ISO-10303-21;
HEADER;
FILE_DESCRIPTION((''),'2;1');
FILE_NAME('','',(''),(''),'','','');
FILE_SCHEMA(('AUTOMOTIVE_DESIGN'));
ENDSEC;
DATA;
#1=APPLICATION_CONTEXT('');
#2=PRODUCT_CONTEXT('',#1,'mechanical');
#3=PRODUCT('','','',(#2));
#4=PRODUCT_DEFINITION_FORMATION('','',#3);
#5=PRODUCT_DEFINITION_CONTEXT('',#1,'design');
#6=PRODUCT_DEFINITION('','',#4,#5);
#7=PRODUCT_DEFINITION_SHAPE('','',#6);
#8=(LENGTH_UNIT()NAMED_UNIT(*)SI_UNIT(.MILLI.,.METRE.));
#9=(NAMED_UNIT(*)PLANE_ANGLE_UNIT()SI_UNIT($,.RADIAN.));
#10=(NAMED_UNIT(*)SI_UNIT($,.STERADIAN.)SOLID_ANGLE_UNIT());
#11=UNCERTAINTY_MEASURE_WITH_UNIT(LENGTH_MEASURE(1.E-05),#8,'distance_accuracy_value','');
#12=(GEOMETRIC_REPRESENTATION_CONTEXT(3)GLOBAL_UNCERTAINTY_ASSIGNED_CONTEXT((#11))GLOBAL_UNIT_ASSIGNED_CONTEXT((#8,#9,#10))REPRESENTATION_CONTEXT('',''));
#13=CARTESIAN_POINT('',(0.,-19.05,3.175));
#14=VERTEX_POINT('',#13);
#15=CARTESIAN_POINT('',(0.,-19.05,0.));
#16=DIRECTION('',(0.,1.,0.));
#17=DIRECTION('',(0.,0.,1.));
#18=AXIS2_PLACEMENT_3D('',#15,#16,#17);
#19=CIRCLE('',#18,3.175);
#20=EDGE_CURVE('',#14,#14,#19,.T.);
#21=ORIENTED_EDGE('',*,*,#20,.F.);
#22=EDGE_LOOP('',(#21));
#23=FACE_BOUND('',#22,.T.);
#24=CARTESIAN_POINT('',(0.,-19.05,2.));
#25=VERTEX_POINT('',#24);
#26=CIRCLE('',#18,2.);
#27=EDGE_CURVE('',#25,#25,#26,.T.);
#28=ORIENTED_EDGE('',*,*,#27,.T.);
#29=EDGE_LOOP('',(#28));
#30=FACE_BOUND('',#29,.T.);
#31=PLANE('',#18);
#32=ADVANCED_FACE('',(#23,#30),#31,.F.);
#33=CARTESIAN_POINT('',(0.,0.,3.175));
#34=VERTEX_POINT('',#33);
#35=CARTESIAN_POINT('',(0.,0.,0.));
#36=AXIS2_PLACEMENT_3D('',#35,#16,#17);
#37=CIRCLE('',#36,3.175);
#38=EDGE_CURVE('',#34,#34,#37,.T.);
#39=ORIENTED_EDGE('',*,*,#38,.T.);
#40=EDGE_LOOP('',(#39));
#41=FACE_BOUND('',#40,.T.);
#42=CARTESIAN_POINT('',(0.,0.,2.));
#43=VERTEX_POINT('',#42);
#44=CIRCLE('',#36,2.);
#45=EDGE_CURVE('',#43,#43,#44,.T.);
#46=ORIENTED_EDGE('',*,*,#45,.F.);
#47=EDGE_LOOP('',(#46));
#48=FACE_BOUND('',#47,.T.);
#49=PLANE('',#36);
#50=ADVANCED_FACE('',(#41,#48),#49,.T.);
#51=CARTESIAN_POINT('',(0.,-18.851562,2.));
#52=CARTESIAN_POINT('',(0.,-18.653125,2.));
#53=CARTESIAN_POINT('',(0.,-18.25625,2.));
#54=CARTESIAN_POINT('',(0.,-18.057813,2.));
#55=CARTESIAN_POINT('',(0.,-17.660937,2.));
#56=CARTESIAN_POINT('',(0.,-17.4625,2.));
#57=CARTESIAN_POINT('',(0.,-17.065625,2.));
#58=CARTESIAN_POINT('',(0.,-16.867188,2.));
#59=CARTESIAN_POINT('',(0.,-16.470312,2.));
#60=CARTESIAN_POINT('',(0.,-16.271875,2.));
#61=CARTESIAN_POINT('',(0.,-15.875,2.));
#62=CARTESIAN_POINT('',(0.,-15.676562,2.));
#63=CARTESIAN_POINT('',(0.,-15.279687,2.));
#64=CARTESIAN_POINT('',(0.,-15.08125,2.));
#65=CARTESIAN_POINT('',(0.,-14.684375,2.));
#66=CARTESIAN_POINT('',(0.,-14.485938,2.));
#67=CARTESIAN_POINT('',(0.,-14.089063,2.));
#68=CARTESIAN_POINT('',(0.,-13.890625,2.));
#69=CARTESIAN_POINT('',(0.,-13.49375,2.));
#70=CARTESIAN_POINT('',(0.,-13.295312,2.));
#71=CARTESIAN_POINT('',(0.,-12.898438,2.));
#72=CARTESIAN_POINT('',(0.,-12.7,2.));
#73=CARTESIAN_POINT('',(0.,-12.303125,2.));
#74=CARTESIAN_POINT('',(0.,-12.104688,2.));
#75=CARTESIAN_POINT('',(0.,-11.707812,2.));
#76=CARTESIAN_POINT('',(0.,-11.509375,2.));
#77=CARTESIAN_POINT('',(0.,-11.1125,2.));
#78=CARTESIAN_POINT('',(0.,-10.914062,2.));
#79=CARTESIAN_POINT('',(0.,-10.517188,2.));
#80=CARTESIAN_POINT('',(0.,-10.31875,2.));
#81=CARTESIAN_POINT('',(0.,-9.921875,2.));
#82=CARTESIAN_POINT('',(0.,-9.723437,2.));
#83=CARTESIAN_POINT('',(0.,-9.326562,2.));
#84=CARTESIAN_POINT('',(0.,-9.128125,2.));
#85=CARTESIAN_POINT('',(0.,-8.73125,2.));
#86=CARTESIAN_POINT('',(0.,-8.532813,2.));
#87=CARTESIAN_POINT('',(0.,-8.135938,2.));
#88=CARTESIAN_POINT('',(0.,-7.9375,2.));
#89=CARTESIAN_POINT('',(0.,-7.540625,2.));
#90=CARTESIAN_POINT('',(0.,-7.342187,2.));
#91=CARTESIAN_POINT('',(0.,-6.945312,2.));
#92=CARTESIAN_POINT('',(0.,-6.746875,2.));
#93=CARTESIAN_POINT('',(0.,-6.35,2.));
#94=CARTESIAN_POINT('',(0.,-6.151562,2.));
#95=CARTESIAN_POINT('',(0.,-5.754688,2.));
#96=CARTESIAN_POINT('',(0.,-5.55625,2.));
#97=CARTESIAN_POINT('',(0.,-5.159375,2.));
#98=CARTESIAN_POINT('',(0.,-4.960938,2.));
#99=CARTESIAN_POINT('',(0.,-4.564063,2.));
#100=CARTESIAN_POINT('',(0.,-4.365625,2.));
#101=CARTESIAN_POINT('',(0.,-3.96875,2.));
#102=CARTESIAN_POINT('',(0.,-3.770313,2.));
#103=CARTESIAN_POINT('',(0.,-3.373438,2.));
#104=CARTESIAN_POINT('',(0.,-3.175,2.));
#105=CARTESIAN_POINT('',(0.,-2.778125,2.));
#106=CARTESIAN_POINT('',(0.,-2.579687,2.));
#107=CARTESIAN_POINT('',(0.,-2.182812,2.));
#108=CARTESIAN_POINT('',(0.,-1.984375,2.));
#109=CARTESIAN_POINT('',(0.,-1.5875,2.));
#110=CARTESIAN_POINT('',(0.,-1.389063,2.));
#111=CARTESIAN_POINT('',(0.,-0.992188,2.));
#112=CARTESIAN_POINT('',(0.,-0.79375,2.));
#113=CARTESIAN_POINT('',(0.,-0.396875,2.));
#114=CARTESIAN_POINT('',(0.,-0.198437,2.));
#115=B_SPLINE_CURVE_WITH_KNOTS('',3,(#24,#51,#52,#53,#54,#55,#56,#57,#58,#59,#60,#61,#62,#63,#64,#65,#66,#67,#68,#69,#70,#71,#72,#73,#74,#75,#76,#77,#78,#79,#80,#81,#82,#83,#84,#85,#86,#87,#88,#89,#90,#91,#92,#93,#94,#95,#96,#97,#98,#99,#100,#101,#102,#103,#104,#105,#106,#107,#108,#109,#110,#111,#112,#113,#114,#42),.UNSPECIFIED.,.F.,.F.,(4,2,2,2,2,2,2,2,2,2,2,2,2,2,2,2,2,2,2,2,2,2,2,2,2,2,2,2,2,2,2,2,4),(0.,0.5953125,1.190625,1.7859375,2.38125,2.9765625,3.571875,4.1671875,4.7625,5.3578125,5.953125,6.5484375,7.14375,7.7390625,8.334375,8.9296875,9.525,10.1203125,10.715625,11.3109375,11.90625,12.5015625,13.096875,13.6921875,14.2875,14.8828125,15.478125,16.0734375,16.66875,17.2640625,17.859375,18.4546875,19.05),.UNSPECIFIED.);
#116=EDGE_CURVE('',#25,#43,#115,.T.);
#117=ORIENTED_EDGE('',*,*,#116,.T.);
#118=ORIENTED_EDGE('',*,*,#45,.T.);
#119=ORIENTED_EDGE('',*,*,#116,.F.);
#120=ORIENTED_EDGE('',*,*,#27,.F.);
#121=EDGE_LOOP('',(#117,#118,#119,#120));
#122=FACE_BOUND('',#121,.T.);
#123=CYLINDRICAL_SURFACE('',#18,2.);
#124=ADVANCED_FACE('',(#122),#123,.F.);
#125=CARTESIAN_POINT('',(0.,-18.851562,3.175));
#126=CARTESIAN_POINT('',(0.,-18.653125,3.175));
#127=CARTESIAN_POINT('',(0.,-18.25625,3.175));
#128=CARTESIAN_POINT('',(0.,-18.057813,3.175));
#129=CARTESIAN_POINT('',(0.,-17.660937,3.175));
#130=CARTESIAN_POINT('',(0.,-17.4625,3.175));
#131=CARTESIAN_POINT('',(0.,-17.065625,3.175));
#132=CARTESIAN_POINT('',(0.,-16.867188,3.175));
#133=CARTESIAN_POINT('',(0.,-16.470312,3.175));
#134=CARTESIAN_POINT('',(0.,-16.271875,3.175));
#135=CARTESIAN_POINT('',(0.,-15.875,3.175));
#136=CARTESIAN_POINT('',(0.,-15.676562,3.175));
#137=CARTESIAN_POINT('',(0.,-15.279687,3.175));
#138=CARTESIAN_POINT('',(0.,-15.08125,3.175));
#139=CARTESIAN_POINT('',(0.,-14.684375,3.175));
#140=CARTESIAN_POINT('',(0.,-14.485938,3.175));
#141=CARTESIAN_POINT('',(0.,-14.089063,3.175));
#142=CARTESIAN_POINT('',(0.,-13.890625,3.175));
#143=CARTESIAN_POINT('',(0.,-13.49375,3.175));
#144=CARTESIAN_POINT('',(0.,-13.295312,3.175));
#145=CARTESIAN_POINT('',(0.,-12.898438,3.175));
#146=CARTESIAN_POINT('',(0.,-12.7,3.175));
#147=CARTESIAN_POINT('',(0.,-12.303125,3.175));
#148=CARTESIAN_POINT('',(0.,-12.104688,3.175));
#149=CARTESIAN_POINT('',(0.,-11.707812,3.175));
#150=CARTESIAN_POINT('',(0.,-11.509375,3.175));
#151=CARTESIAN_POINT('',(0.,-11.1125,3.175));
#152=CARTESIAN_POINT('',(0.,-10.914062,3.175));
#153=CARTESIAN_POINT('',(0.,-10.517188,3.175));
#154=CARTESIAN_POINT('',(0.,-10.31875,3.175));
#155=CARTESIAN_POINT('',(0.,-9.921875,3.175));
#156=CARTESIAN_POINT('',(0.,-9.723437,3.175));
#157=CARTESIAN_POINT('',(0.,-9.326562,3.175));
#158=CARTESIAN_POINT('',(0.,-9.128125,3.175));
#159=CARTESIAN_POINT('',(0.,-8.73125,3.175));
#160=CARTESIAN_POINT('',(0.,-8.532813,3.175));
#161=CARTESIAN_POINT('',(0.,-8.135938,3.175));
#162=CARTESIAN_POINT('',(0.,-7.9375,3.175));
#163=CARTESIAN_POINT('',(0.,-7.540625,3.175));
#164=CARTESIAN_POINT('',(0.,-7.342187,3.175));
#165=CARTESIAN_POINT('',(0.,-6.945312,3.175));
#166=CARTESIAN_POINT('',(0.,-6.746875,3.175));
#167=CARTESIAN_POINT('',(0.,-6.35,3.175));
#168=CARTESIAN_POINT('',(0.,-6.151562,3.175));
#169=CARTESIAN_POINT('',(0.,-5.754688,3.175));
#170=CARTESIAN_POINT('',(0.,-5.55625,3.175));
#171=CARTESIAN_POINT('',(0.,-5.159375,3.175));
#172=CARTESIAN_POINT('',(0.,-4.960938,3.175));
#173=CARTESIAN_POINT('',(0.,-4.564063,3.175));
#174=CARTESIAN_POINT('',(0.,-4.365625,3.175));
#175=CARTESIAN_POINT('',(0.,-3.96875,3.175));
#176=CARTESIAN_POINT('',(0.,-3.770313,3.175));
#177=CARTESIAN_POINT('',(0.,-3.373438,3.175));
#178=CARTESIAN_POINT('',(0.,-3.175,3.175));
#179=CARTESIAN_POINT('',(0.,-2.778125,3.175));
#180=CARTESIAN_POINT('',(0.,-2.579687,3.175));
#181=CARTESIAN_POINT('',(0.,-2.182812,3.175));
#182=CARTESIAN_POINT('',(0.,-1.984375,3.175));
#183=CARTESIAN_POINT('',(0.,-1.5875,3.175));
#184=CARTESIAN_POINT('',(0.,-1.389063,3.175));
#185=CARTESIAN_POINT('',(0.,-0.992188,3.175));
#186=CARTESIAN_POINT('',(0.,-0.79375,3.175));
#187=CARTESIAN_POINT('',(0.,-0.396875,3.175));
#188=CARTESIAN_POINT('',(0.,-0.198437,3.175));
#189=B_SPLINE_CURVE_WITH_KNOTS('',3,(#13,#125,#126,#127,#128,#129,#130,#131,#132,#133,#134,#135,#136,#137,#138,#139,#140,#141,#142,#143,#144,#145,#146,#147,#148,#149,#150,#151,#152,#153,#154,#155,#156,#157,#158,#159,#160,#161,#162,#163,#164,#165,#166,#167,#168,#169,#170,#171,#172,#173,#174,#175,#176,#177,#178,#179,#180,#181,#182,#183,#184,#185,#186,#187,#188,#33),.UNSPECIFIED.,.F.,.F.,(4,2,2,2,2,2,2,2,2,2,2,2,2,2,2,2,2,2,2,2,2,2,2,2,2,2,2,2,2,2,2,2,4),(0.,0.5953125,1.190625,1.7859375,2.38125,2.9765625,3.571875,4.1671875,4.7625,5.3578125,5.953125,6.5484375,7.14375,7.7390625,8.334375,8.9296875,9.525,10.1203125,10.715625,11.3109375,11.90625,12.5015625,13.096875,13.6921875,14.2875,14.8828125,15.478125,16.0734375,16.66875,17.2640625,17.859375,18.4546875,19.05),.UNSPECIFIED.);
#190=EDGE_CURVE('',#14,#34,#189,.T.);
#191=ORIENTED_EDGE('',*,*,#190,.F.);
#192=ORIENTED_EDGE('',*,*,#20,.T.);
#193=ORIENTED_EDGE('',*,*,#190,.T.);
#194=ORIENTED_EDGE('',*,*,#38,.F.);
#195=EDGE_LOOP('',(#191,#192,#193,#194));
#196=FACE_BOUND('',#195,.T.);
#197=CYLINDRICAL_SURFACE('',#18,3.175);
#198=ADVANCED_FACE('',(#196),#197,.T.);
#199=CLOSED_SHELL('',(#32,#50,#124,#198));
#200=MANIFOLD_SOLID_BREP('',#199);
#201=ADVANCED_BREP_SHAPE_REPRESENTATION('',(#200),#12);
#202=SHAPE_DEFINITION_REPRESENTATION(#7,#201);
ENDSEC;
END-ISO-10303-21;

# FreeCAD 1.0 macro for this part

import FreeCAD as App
import Part
import Sketcher

V = App.Vector
Q = App.Units.Quantity

doc = App.newDocument("Part")
body = doc.addObject("PartDesign::Body", "Body")

sketch1 = body.newObject("Sketcher::SketchObject", "Sketch")
sketch1.AttachmentSupport = (doc.getObject("XZ_Plane"), [""])
sketch1.MapMode = "FlatFace"
sketch1.addGeometry(Part.Circle(V(0, 0, 0), V(0, 0, 1), 3.2), False)
sketch1.addGeometry(Part.Circle(V(0, 0, 0), V(0, 0, 1), 2), False)
sketch1.addConstraint(Sketcher.Constraint("Coincident", 0, 3, -1, 1))
sketch1.addConstraint(Sketcher.Constraint("Coincident", 1, 3, -1, 1))
sketch1.addConstraint(Sketcher.Constraint("Diameter", 0, Q("0.25 in")))
sketch1.addConstraint(Sketcher.Constraint("Diameter", 1, 4.0))
pad1 = body.newObject("PartDesign::Pad", "Pad")
pad1.Profile = sketch1
pad1.Length = Q("0.75 in")

doc.recompute()
